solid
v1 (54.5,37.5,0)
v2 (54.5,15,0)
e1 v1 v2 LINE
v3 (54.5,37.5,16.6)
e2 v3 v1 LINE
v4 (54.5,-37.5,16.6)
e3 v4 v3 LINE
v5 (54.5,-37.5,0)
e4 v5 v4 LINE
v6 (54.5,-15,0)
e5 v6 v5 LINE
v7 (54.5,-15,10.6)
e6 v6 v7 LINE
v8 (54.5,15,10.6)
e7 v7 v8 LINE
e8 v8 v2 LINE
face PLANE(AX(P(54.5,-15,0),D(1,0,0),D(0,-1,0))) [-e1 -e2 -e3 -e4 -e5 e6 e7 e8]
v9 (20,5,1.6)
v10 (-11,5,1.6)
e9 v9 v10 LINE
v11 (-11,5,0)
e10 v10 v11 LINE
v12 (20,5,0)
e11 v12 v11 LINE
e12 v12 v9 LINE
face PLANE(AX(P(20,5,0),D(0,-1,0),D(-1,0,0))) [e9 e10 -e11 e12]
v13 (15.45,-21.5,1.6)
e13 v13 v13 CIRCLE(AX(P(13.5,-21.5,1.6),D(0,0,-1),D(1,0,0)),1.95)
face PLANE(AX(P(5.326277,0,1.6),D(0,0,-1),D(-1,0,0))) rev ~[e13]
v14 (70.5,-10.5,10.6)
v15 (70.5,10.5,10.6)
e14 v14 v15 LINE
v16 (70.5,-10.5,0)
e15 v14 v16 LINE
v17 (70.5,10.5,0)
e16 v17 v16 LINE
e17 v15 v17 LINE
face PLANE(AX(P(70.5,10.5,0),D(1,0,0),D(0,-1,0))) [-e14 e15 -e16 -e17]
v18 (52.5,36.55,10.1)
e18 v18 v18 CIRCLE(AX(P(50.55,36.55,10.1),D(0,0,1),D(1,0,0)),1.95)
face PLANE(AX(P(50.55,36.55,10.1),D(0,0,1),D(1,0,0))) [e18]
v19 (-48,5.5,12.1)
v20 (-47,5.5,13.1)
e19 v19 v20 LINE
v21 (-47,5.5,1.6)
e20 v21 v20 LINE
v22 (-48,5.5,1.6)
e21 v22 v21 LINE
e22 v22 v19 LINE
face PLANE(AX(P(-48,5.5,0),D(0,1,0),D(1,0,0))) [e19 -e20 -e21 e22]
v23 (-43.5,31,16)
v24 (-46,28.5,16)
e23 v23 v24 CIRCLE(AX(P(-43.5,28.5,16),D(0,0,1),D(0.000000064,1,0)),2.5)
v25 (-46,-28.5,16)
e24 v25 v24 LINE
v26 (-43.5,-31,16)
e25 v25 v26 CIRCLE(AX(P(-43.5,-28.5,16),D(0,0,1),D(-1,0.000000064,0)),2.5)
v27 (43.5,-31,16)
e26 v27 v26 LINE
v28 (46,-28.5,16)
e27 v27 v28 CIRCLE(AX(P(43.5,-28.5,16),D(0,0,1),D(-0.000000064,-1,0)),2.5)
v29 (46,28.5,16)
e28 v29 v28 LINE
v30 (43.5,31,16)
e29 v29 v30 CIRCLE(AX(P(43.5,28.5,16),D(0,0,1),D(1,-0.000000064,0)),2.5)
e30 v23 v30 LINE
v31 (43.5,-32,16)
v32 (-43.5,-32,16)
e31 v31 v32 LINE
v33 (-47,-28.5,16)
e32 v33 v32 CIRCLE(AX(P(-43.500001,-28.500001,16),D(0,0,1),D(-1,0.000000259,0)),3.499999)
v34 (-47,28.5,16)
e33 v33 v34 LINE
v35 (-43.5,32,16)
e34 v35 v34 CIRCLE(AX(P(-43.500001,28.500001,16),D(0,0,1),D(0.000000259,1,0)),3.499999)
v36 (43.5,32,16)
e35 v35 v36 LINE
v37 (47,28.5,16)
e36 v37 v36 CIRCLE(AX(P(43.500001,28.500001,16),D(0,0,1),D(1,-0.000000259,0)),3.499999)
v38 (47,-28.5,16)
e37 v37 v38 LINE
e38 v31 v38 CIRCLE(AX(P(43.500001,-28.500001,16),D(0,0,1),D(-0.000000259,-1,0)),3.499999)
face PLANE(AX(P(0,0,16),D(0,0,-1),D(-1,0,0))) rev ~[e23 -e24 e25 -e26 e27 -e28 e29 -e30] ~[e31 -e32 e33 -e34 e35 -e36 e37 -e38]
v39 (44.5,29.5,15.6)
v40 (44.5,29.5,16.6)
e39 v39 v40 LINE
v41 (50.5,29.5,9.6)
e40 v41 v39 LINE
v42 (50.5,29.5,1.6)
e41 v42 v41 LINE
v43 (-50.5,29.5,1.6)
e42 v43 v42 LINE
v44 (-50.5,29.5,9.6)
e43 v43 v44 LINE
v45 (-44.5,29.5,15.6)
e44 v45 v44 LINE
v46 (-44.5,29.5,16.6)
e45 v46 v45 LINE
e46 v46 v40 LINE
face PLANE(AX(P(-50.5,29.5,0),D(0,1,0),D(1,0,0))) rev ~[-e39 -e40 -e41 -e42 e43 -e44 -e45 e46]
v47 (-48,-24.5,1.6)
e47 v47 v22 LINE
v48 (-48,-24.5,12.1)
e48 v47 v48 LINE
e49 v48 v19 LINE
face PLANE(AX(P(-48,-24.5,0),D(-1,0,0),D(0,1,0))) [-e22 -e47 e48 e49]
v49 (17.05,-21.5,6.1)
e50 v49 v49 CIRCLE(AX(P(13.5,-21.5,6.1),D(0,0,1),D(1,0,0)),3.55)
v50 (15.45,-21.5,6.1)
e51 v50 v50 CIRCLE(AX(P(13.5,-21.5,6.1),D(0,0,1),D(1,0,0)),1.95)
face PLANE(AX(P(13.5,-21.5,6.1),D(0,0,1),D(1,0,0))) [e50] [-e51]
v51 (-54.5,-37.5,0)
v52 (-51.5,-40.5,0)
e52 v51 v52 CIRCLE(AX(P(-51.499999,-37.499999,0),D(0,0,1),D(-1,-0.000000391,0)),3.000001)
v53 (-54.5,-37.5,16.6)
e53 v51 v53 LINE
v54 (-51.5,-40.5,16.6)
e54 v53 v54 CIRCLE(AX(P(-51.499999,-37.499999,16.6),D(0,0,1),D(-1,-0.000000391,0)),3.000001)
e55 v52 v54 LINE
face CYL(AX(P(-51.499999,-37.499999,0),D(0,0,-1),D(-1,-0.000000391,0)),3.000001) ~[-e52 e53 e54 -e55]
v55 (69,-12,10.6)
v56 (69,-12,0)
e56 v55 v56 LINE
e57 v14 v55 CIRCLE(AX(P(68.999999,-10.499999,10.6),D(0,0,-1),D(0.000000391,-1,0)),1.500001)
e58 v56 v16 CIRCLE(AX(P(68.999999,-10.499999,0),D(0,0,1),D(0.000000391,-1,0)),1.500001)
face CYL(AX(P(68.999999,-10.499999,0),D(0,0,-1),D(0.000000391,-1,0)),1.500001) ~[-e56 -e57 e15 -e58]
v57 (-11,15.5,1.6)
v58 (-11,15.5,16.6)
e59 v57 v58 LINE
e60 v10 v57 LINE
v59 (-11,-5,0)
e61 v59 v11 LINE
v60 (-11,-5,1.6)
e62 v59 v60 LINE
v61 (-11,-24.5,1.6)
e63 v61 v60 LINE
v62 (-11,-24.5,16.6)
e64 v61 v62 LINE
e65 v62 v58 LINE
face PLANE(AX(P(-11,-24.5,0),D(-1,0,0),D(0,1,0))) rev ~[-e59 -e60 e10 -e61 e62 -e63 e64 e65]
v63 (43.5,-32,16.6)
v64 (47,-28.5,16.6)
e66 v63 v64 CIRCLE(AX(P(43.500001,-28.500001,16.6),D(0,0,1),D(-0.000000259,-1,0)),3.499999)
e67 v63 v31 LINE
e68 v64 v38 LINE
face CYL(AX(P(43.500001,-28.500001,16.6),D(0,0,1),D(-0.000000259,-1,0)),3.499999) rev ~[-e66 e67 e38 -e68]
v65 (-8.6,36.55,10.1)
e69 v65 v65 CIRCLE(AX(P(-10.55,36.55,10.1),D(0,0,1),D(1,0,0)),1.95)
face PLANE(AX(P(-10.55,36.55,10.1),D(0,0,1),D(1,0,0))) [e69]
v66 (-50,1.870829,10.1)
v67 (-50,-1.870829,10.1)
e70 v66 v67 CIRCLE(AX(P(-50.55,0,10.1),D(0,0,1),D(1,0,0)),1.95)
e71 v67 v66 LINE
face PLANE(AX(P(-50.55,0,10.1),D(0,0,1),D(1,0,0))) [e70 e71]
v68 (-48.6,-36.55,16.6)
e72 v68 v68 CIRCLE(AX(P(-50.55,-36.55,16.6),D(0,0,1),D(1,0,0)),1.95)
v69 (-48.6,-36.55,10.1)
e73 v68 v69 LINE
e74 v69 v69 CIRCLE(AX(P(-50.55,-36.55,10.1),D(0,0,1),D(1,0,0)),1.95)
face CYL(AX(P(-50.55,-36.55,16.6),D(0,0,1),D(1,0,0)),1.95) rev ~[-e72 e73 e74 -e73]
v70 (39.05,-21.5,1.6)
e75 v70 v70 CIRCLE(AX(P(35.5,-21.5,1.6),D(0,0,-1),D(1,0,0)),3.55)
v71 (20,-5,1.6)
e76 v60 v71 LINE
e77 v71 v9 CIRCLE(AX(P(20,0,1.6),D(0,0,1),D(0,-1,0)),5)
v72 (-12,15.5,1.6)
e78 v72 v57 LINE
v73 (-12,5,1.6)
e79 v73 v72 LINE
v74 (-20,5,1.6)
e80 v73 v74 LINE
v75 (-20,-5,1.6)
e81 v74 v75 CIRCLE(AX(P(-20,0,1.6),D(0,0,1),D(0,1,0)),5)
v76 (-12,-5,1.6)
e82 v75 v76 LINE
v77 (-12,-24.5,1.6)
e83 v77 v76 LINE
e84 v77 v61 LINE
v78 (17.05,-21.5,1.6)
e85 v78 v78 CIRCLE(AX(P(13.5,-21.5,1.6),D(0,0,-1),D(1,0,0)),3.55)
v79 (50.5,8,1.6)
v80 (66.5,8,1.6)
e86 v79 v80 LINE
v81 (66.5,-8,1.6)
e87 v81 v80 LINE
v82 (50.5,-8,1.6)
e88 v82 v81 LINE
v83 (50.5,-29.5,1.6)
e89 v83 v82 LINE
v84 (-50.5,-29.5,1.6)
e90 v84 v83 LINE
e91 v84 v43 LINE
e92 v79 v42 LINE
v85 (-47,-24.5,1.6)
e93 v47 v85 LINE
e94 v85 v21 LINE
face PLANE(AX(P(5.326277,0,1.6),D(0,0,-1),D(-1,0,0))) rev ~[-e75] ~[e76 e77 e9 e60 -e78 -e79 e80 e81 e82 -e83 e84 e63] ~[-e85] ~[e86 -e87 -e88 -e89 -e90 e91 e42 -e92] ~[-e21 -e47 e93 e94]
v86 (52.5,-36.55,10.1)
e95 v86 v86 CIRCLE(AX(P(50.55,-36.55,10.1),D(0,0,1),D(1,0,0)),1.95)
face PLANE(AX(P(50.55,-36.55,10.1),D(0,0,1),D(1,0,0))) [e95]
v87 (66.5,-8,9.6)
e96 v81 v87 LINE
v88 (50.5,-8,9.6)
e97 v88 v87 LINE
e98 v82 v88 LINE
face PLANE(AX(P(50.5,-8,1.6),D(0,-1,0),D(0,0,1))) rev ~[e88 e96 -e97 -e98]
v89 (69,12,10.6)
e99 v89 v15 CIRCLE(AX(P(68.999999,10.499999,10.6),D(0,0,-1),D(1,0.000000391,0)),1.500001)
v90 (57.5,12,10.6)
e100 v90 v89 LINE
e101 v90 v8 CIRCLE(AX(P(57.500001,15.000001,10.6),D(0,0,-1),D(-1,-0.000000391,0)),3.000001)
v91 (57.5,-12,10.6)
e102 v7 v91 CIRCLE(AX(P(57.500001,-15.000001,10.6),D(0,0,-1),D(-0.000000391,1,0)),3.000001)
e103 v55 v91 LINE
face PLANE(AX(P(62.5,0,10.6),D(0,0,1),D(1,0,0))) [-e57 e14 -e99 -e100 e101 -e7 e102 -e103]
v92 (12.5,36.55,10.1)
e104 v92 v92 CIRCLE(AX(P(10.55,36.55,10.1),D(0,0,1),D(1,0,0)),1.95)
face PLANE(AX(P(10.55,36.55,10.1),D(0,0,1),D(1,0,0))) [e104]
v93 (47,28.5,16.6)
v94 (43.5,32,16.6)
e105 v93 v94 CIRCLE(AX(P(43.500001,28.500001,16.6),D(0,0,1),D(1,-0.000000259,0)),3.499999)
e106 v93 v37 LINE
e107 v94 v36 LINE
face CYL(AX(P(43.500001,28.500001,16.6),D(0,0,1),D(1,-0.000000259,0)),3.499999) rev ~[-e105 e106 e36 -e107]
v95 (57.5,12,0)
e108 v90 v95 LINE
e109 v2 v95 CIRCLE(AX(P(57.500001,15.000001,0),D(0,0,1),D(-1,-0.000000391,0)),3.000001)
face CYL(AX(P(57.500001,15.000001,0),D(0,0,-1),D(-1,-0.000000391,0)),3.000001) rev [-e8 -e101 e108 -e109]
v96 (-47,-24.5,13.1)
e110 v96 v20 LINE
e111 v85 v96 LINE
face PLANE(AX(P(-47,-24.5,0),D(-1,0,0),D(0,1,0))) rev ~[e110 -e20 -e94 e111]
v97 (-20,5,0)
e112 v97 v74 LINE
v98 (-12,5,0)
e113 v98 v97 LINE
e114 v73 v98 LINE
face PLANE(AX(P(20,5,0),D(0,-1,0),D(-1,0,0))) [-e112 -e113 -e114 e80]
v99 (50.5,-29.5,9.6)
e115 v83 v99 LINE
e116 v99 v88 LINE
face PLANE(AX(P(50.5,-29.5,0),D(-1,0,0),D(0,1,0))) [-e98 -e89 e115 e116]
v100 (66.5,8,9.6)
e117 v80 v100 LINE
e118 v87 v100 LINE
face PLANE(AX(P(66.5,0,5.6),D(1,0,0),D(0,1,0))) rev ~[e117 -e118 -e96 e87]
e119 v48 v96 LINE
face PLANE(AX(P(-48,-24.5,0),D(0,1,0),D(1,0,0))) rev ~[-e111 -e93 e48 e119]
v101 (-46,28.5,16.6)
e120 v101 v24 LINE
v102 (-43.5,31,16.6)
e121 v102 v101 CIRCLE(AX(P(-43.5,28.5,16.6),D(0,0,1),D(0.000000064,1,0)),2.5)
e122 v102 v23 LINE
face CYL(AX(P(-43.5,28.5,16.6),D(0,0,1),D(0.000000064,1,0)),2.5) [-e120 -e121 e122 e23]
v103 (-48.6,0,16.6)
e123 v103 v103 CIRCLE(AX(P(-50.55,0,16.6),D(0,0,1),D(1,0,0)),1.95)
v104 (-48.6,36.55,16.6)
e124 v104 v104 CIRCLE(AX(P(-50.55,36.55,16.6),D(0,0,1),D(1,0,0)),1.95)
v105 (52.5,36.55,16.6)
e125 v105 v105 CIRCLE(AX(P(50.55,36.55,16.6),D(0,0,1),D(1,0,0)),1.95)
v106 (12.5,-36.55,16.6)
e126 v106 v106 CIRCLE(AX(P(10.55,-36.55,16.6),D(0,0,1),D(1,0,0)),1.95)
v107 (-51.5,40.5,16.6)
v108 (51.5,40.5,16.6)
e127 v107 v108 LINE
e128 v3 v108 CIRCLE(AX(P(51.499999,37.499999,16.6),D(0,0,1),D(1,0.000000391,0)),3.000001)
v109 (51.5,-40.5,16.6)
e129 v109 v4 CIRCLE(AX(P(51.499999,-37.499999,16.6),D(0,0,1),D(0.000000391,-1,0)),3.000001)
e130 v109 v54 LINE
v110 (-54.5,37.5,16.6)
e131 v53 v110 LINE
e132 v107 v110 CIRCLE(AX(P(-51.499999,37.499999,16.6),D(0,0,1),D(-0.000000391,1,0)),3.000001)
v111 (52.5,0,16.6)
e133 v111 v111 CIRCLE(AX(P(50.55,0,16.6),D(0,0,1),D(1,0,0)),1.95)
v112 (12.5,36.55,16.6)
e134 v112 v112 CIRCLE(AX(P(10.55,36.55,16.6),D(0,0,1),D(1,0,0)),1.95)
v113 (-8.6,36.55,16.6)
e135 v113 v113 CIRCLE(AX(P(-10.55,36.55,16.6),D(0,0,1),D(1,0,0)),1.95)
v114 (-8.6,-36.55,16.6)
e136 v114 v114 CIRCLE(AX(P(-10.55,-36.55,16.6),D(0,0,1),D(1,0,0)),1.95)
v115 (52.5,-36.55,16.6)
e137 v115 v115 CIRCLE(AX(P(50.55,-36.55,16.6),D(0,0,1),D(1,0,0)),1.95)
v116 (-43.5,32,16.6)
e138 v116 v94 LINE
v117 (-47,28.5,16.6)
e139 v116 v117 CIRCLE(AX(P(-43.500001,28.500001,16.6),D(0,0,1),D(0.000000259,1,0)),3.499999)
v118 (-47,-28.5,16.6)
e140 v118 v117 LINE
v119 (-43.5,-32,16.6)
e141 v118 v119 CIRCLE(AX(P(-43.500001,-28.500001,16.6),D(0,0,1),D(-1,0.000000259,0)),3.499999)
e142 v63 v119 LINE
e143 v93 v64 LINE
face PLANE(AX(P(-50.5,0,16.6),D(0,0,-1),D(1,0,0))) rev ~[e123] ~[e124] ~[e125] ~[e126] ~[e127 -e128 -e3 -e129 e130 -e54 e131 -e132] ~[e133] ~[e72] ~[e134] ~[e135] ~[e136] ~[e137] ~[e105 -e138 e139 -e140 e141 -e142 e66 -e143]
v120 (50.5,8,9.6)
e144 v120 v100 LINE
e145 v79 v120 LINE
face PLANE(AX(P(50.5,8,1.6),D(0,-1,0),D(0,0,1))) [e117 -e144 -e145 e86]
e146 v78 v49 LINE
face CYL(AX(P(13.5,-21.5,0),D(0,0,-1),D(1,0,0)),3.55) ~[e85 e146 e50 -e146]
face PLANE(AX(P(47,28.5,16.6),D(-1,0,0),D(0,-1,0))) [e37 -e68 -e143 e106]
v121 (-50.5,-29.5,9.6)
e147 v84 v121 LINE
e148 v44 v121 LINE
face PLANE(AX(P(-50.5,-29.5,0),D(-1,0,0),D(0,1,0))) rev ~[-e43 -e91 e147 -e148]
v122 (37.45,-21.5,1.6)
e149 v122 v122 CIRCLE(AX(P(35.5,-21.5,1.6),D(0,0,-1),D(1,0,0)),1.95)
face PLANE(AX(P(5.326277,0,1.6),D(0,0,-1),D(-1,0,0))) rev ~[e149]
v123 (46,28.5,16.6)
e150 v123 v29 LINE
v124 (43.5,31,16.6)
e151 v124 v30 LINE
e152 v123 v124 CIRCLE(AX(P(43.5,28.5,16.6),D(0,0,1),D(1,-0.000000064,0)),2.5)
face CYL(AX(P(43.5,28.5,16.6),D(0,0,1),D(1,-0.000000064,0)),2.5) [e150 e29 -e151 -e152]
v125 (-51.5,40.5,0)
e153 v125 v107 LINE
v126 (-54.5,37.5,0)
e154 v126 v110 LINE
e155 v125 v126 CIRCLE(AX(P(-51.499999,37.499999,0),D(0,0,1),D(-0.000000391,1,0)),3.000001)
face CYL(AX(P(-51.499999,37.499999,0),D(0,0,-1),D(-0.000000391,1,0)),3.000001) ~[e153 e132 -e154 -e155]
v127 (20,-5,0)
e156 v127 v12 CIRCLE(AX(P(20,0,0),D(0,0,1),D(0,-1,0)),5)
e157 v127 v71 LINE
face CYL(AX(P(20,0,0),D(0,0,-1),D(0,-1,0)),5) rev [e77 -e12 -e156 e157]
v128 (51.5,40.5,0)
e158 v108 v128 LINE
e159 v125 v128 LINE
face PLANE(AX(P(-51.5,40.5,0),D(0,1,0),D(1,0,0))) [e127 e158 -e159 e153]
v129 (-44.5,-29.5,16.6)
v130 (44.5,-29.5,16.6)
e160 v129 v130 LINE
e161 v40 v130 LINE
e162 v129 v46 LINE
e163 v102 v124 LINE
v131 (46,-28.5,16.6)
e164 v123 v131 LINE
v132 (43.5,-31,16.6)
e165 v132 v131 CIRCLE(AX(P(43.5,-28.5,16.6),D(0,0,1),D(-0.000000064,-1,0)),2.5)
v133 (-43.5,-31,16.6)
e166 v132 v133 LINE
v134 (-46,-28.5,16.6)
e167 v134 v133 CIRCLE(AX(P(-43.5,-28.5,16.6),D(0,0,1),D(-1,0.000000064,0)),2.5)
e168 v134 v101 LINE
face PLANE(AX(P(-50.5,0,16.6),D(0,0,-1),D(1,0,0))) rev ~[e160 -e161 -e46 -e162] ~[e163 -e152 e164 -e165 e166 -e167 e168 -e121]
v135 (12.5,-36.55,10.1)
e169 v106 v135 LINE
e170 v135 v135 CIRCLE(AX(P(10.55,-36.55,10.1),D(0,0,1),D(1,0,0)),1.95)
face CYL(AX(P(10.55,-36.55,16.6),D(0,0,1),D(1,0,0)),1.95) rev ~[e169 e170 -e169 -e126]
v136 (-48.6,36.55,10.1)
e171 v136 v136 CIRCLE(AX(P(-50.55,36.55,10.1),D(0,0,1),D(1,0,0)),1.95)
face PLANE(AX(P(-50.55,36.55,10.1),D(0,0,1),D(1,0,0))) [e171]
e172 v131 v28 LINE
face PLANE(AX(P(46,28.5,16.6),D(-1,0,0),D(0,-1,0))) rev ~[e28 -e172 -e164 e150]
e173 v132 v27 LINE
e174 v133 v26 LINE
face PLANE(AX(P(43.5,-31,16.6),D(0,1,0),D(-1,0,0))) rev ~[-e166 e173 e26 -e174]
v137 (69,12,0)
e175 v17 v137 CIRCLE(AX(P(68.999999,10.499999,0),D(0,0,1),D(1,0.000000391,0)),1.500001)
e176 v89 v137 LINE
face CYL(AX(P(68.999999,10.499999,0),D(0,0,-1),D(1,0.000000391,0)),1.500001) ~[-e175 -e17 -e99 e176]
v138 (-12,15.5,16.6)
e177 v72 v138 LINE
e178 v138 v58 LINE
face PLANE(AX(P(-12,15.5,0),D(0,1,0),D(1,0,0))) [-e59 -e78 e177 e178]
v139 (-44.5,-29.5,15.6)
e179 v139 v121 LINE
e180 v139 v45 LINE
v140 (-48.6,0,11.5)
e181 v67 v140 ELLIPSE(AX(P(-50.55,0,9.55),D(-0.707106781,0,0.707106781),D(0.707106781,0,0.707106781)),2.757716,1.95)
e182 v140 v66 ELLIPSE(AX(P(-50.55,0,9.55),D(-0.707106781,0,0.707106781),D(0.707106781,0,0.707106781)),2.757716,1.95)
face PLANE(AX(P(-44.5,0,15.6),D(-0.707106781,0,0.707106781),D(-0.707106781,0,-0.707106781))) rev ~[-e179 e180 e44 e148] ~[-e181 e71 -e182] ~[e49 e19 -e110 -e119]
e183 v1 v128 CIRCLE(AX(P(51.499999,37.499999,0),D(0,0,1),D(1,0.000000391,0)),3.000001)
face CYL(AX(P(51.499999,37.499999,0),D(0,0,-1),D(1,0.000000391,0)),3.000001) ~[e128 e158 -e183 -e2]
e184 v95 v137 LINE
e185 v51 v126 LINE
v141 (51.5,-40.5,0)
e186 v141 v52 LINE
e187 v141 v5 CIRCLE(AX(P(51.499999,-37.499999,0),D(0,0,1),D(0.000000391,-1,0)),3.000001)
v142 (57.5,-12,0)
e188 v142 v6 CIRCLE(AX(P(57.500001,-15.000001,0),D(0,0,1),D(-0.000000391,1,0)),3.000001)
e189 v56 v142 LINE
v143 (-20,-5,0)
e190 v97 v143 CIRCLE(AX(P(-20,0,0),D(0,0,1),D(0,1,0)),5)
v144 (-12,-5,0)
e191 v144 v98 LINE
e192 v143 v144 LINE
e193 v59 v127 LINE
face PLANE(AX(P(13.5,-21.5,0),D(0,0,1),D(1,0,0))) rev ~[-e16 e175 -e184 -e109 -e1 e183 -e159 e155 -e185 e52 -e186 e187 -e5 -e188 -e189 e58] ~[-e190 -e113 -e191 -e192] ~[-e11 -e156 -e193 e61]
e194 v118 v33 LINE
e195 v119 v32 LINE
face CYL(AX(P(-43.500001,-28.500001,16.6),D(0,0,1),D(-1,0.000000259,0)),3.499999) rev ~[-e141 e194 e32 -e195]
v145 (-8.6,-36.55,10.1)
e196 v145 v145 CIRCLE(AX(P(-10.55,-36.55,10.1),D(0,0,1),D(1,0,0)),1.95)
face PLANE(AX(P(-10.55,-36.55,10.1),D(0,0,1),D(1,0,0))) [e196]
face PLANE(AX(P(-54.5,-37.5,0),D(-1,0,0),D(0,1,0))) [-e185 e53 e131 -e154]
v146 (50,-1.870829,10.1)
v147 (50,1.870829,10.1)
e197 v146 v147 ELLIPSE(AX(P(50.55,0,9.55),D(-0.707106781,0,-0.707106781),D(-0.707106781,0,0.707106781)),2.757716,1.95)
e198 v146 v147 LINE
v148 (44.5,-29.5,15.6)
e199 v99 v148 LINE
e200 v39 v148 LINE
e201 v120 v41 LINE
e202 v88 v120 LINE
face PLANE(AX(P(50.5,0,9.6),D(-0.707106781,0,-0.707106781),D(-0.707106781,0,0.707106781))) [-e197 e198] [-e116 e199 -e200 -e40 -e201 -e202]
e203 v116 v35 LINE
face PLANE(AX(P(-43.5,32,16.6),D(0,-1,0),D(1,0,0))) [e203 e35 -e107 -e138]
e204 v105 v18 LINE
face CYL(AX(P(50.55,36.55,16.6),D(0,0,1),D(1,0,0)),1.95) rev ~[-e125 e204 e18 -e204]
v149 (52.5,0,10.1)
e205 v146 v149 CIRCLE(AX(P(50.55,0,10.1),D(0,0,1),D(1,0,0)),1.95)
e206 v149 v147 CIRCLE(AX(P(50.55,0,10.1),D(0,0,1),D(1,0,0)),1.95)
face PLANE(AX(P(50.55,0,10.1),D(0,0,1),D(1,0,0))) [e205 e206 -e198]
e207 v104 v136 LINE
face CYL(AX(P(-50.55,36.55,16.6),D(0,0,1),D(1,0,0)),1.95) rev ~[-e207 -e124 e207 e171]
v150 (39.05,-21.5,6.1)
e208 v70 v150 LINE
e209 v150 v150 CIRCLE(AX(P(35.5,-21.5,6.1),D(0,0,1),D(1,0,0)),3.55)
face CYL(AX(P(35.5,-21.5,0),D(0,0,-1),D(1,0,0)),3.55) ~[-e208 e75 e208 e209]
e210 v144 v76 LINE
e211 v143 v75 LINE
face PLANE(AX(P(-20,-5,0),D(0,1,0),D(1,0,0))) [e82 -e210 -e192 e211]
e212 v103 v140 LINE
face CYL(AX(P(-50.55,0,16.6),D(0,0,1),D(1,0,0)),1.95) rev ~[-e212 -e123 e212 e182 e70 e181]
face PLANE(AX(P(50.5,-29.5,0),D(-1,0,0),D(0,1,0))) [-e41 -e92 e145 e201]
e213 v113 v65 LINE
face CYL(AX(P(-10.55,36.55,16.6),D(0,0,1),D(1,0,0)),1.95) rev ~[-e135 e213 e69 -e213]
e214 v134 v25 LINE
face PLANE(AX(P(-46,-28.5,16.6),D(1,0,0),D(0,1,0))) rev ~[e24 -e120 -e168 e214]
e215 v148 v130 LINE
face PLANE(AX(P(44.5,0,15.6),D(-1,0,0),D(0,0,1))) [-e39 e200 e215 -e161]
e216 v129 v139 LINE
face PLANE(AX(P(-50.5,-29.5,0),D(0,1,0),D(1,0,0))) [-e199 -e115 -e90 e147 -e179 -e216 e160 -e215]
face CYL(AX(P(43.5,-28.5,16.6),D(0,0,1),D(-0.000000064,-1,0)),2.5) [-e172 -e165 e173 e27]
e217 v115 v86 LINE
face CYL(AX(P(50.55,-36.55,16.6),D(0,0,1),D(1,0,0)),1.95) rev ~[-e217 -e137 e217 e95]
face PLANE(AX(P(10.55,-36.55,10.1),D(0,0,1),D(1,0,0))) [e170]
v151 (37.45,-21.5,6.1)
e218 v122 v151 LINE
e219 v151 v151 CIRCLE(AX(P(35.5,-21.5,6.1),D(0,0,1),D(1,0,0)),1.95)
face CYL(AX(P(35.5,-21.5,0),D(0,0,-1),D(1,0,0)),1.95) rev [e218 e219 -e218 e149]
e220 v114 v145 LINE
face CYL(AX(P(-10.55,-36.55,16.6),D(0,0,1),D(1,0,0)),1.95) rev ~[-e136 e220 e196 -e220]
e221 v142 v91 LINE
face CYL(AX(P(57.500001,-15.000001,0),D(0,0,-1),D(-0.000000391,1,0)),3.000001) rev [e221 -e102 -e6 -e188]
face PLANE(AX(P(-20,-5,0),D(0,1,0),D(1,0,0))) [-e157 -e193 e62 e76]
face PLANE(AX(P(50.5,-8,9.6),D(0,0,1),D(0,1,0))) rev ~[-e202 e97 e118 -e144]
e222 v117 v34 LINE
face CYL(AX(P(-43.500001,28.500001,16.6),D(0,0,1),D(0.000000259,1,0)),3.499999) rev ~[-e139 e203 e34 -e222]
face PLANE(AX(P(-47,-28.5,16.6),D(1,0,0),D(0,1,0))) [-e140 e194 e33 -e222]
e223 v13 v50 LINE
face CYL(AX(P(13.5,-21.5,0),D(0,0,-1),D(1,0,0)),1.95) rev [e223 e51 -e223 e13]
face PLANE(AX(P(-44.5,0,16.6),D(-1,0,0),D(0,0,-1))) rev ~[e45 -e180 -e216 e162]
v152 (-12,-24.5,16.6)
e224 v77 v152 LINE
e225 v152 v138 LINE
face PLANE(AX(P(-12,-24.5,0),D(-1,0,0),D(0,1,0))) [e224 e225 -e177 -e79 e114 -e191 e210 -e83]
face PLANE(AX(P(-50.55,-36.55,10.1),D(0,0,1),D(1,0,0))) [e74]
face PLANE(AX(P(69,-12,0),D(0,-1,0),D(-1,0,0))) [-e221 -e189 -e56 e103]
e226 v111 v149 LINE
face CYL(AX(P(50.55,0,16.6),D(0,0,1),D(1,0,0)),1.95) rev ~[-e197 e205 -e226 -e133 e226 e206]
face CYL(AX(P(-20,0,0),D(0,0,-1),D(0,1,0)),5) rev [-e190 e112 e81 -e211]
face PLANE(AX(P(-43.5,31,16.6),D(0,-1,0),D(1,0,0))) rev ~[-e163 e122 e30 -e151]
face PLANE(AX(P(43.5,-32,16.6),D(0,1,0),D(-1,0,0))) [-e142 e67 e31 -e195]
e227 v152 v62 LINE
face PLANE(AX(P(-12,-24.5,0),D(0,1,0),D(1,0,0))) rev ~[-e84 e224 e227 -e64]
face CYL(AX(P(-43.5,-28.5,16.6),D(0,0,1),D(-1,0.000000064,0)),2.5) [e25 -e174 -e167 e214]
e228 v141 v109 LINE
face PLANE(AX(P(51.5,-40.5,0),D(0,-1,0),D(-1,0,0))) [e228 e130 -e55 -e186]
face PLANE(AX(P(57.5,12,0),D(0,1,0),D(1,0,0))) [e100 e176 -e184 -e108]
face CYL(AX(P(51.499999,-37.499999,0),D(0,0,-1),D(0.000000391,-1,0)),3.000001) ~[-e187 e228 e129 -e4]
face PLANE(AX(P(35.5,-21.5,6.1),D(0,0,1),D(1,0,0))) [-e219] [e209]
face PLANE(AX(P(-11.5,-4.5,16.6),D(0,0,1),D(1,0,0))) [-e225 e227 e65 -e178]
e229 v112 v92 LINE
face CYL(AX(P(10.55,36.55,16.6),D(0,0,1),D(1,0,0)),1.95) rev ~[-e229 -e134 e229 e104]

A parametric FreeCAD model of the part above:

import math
import FreeCAD as App
import Part
import Sketcher

doc = App.newDocument("Part")
body = doc.addObject("PartDesign::Body", "Body")

sketch1 = body.newObject("Sketcher::SketchObject", "Sketch")
sketch1.AttachmentSupport = (doc.getObject("XY_Plane"), [""])
sketch1.MapMode = "FlatFace"
sketch1.addGeometry([
    Part.LineSegment(App.Vector(51.5, 40.5, 0), App.Vector(-51.5, 40.5, 0)),
    Part.ArcOfCircle(Part.Circle(App.Vector(-51.499999, 37.499999, 0), App.Vector(0, 0, 1), 3.000001), math.radians(90.000022), math.radians(179.999978)),
    Part.LineSegment(App.Vector(-54.5, 37.5, 0), App.Vector(-54.5, -37.5, 0)),
    Part.ArcOfCircle(Part.Circle(App.Vector(-51.499999, -37.499999, 0), App.Vector(0, 0, 1), 3.000001), math.radians(-179.999978), math.radians(-90.000022)),
    Part.LineSegment(App.Vector(-51.5, -40.5, 0), App.Vector(51.5, -40.5, 0)),
    Part.ArcOfCircle(Part.Circle(App.Vector(51.499999, -37.499999, 0), App.Vector(0, 0, 1), 3.000001), math.radians(-89.999978), math.radians(-0.000022)),
    Part.LineSegment(App.Vector(54.5, -37.5, 0), App.Vector(54.5, -15, 0)),
    Part.ArcOfCircle(Part.Circle(App.Vector(57.500001, -15.000001, 0), App.Vector(0, 0, 1), 3.000001), math.radians(90.000022), math.radians(179.999978)),
    Part.LineSegment(App.Vector(57.5, -12, 0), App.Vector(69, -12, 0)),
    Part.ArcOfCircle(Part.Circle(App.Vector(68.999999, -10.499999, 0), App.Vector(0, 0, 1), 1.500001), math.radians(-89.999978), math.radians(-0.000022)),
    Part.LineSegment(App.Vector(70.5, -10.5, 0), App.Vector(70.5, 10.5, 0)),
    Part.ArcOfCircle(Part.Circle(App.Vector(68.999999, 10.499999, 0), App.Vector(0, 0, 1), 1.500001), math.radians(0.000022), math.radians(89.999978)),
    Part.LineSegment(App.Vector(69, 12, 0), App.Vector(57.5, 12, 0)),
    Part.ArcOfCircle(Part.Circle(App.Vector(57.500001, 15.000001, 0), App.Vector(0, 0, 1), 3.000001), math.radians(-179.999978), math.radians(-90.000022)),
    Part.LineSegment(App.Vector(54.5, 15, 0), App.Vector(54.5, 37.5, 0)),
    Part.ArcOfCircle(Part.Circle(App.Vector(51.499999, 37.499999, 0), App.Vector(0, 0, 1), 3.000001), math.radians(0.000022), math.radians(89.999978)),
    Part.LineSegment(App.Vector(-20, 5, 0), App.Vector(20, 5, 0)),
    Part.ArcOfCircle(Part.Circle(App.Vector(20, 0, 0), App.Vector(0, 0, 1), 5), math.radians(-90), math.radians(90)),
    Part.LineSegment(App.Vector(20, -5, 0), App.Vector(-20, -5, 0)),
    Part.ArcOfCircle(Part.Circle(App.Vector(-20, 0, 0), App.Vector(0, 0, 1), 5), math.radians(90), math.radians(270)),
], False)
sketch1.addConstraint([
    Sketcher.Constraint("Tangent", 0, 2, 1, 1),
    Sketcher.Constraint("Tangent", 1, 2, 2, 1),
    Sketcher.Constraint("Tangent", 2, 2, 3, 1),
    Sketcher.Constraint("Tangent", 3, 2, 4, 1),
    Sketcher.Constraint("Tangent", 4, 2, 5, 1),
    Sketcher.Constraint("Tangent", 5, 2, 6, 1),
    Sketcher.Constraint("Tangent", 6, 2, 7, 2),
    Sketcher.Constraint("Tangent", 7, 1, 8, 1),
    Sketcher.Constraint("Tangent", 8, 2, 9, 1),
    Sketcher.Constraint("Tangent", 9, 2, 10, 1),
    Sketcher.Constraint("Tangent", 10, 2, 11, 1),
    Sketcher.Constraint("Tangent", 11, 2, 12, 1),
    Sketcher.Constraint("Tangent", 12, 2, 13, 2),
    Sketcher.Constraint("Tangent", 13, 1, 14, 1),
    Sketcher.Constraint("Tangent", 14, 2, 15, 1),
    Sketcher.Constraint("Tangent", 15, 2, 0, 1),
    Sketcher.Constraint("Tangent", 16, 2, 17, 2),
    Sketcher.Constraint("Tangent", 17, 1, 18, 1),
    Sketcher.Constraint("Tangent", 18, 2, 19, 2),
    Sketcher.Constraint("Tangent", 19, 1, 16, 1),
    Sketcher.Constraint("Horizontal", 0),
    Sketcher.Constraint("Vertical", 2),
    Sketcher.Constraint("Horizontal", 4),
    Sketcher.Constraint("Vertical", 6),
    Sketcher.Constraint("Horizontal", 8),
    Sketcher.Constraint("Vertical", 10),
    Sketcher.Constraint("Horizontal", 12),
    Sketcher.Constraint("Vertical", 14),
    Sketcher.Constraint("Horizontal", 16),
    Sketcher.Constraint("Horizontal", 18),
    Sketcher.Constraint("Equal", 1, 3),
    Sketcher.Constraint("Equal", 3, 5),
    Sketcher.Constraint("Equal", 5, 7),
    Sketcher.Constraint("Equal", 9, 11),
    Sketcher.Constraint("Equal", 7, 13),
    Sketcher.Constraint("Equal", 13, 15),
    Sketcher.Constraint("Symmetric", 1, 3, 5, 3, -1, 1),
    Sketcher.Constraint("Symmetric", 17, 3, 19, 3, -1, 1),
    Sketcher.Constraint("Symmetric", 7, 3, 13, 3, -1),
    Sketcher.Constraint("Radius", 1, 3.000001),
    Sketcher.Constraint("Radius", 17, 5.0),
    Sketcher.Constraint("Radius", 9, 1.500001),
    Sketcher.Constraint("DistanceX", 0, 2, 0, 1, 103.0),
    Sketcher.Constraint("DistanceX", 16, 1, 16, 2, 40.0),
    Sketcher.Constraint("DistanceY", 2, 2, 2, 1, 75.0),
    Sketcher.Constraint("DistanceY", 10, 1, 10, 2, 21.0),
    Sketcher.Constraint("DistanceX", 8, 1, 8, 2, 11.5),
])
pad1 = body.newObject("PartDesign::Pad", "Pad")
pad1.Profile = sketch1
pad1.Length = 1.6

sketch2 = body.newObject("Sketcher::SketchObject", "Sketch001")
sketch2.AttachmentSupport = (doc.getObject("XY_Plane"), [""])
sketch2.MapMode = "FlatFace"
sketch2.addGeometry([
    Part.LineSegment(App.Vector(51.5, 40.5, 0), App.Vector(-51.5, 40.5, 0)),
    Part.ArcOfCircle(Part.Circle(App.Vector(-51.499999, 37.499999, 0), App.Vector(0, 0, 1), 3.000001), math.radians(90.000022), math.radians(179.999978)),
    Part.LineSegment(App.Vector(-54.5, 37.5, 0), App.Vector(-54.5, -37.5, 0)),
    Part.ArcOfCircle(Part.Circle(App.Vector(-51.499999, -37.499999, 0), App.Vector(0, 0, 1), 3.000001), math.radians(-179.999978), math.radians(-90.000022)),
    Part.LineSegment(App.Vector(-51.5, -40.5, 0), App.Vector(51.5, -40.5, 0)),
    Part.ArcOfCircle(Part.Circle(App.Vector(51.499999, -37.499999, 0), App.Vector(0, 0, 1), 3.000001), math.radians(-89.999978), math.radians(-0.000022)),
    Part.LineSegment(App.Vector(54.5, -37.5, 0), App.Vector(54.5, -15, 0)),
    Part.ArcOfCircle(Part.Circle(App.Vector(57.500001, -15.000001, 0), App.Vector(0, 0, 1), 3.000001), math.radians(90.000022), math.radians(179.999978)),
    Part.LineSegment(App.Vector(57.5, -12, 0), App.Vector(69, -12, 0)),
    Part.ArcOfCircle(Part.Circle(App.Vector(68.999999, -10.499999, 0), App.Vector(0, 0, 1), 1.500001), math.radians(-89.999978), math.radians(-0.000022)),
    Part.LineSegment(App.Vector(70.5, -10.5, 0), App.Vector(70.5, 10.5, 0)),
    Part.ArcOfCircle(Part.Circle(App.Vector(68.999999, 10.499999, 0), App.Vector(0, 0, 1), 1.500001), math.radians(0.000022), math.radians(89.999978)),
    Part.LineSegment(App.Vector(69, 12, 0), App.Vector(57.5, 12, 0)),
    Part.ArcOfCircle(Part.Circle(App.Vector(57.500001, 15.000001, 0), App.Vector(0, 0, 1), 3.000001), math.radians(-179.999978), math.radians(-90.000022)),
    Part.LineSegment(App.Vector(54.5, 15, 0), App.Vector(54.5, 37.5, 0)),
    Part.ArcOfCircle(Part.Circle(App.Vector(51.499999, 37.499999, 0), App.Vector(0, 0, 1), 3.000001), math.radians(0.000022), math.radians(89.999978)),
    Part.LineSegment(App.Vector(-50.5, -29.5, 0), App.Vector(-50.5, 29.5, 0)),
    Part.LineSegment(App.Vector(-50.5, 29.5, 0), App.Vector(50.5, 29.5, 0)),
    Part.LineSegment(App.Vector(50.5, 29.5, 0), App.Vector(50.5, -29.5, 0)),
    Part.LineSegment(App.Vector(50.5, -29.5, 0), App.Vector(-50.5, -29.5, 0)),
    Part.LineSegment(App.Vector(-48, 5.5, 0), App.Vector(-48, -24.5, 0)),
    Part.LineSegment(App.Vector(-48, -24.5, 0), App.Vector(-47, -24.5, 0)),
    Part.LineSegment(App.Vector(-47, -24.5, 0), App.Vector(-47, 5.5, 0)),
    Part.LineSegment(App.Vector(-47, 5.5, 0), App.Vector(-48, 5.5, 0)),
    Part.LineSegment(App.Vector(-12, 15.5, 0), App.Vector(-12, -24.5, 0)),
    Part.LineSegment(App.Vector(-12, -24.5, 0), App.Vector(-11, -24.5, 0)),
    Part.LineSegment(App.Vector(-11, -24.5, 0), App.Vector(-11, 15.5, 0)),
    Part.LineSegment(App.Vector(-11, 15.5, 0), App.Vector(-12, 15.5, 0)),
], False)
sketch2.addConstraint([
    Sketcher.Constraint("Tangent", 0, 2, 1, 1),
    Sketcher.Constraint("Tangent", 1, 2, 2, 1),
    Sketcher.Constraint("Tangent", 2, 2, 3, 1),
    Sketcher.Constraint("Tangent", 3, 2, 4, 1),
    Sketcher.Constraint("Tangent", 4, 2, 5, 1),
    Sketcher.Constraint("Tangent", 5, 2, 6, 1),
    Sketcher.Constraint("Tangent", 6, 2, 7, 2),
    Sketcher.Constraint("Tangent", 7, 1, 8, 1),
    Sketcher.Constraint("Tangent", 8, 2, 9, 1),
    Sketcher.Constraint("Tangent", 9, 2, 10, 1),
    Sketcher.Constraint("Tangent", 10, 2, 11, 1),
    Sketcher.Constraint("Tangent", 11, 2, 12, 1),
    Sketcher.Constraint("Tangent", 12, 2, 13, 2),
    Sketcher.Constraint("Tangent", 13, 1, 14, 1),
    Sketcher.Constraint("Tangent", 14, 2, 15, 1),
    Sketcher.Constraint("Tangent", 15, 2, 0, 1),
    Sketcher.Constraint("Coincident", 16, 2, 17, 1),
    Sketcher.Constraint("Coincident", 17, 2, 18, 1),
    Sketcher.Constraint("Coincident", 18, 2, 19, 1),
    Sketcher.Constraint("Coincident", 19, 2, 16, 1),
    Sketcher.Constraint("Coincident", 20, 2, 21, 1),
    Sketcher.Constraint("Coincident", 21, 2, 22, 1),
    Sketcher.Constraint("Coincident", 22, 2, 23, 1),
    Sketcher.Constraint("Coincident", 23, 2, 20, 1),
    Sketcher.Constraint("Coincident", 24, 2, 25, 1),
    Sketcher.Constraint("Coincident", 25, 2, 26, 1),
    Sketcher.Constraint("Coincident", 26, 2, 27, 1),
    Sketcher.Constraint("Coincident", 27, 2, 24, 1),
    Sketcher.Constraint("Horizontal", 0),
    Sketcher.Constraint("Vertical", 2),
    Sketcher.Constraint("Horizontal", 4),
    Sketcher.Constraint("Vertical", 6),
    Sketcher.Constraint("Horizontal", 8),
    Sketcher.Constraint("Vertical", 10),
    Sketcher.Constraint("Horizontal", 12),
    Sketcher.Constraint("Vertical", 14),
    Sketcher.Constraint("Vertical", 16),
    Sketcher.Constraint("Horizontal", 17),
    Sketcher.Constraint("Vertical", 18),
    Sketcher.Constraint("Horizontal", 19),
    Sketcher.Constraint("Vertical", 20),
    Sketcher.Constraint("Horizontal", 21),
    Sketcher.Constraint("Vertical", 22),
    Sketcher.Constraint("Horizontal", 23),
    Sketcher.Constraint("Vertical", 24),
    Sketcher.Constraint("Horizontal", 25),
    Sketcher.Constraint("Vertical", 26),
    Sketcher.Constraint("Horizontal", 27),
    Sketcher.Constraint("Equal", 1, 3),
    Sketcher.Constraint("Equal", 3, 5),
    Sketcher.Constraint("Equal", 5, 7),
    Sketcher.Constraint("Equal", 9, 11),
    Sketcher.Constraint("Equal", 7, 13),
    Sketcher.Constraint("Equal", 13, 15),
    Sketcher.Constraint("Symmetric", 1, 3, 5, 3, -1, 1),
    Sketcher.Constraint("Symmetric", 16, 2, 18, 2, -1, 1),
    Sketcher.Constraint("Symmetric", 7, 3, 13, 3, -1),
    Sketcher.Constraint("Horizontal", 21, 2, 24, 2),
    Sketcher.Constraint("Equal", 23, 25),
    Sketcher.Constraint("Radius", 1, 3.000001),
    Sketcher.Constraint("Radius", 9, 1.500001),
    Sketcher.Constraint("DistanceX", 0, 2, 0, 1, 103.0),
    Sketcher.Constraint("DistanceX", 17, 1, 17, 2, 101.0),
    Sketcher.Constraint("DistanceX", 21, 1, 21, 2, 1.0),
    Sketcher.Constraint("DistanceY", 2, 2, 2, 1, 75.0),
    Sketcher.Constraint("DistanceY", 10, 1, 10, 2, 21.0),
    Sketcher.Constraint("DistanceY", 16, 1, 16, 2, 59.0),
    Sketcher.Constraint("DistanceY", 20, 2, 20, 1, 30.0),
    Sketcher.Constraint("DistanceY", 24, 2, 24, 1, 40.0),
    Sketcher.Constraint("DistanceX", 8, 1, 8, 2, 11.5),
    Sketcher.Constraint("DistanceX", 20, 2, -1, 1, 48.0),
    Sketcher.Constraint("DistanceX", 24, 2, -1, 1, 12.0),
    Sketcher.Constraint("DistanceY", 19, 2, 20, 2, 5.0),
])
pad2 = body.newObject("PartDesign::Pad", "Pad001")
pad2.Profile = sketch2
pad2.Length = 16.6

sketch3 = body.newObject("Sketcher::SketchObject", "Sketch002")
sketch3.AttachmentSupport = (doc.getObject("XY_Plane"), [""])
sketch3.MapMode = "FlatFace"
sketch3.AttachmentOffset = App.Placement(App.Vector(0, 0, 16.6), App.Rotation())
sketch3.addGeometry([
    Part.LineSegment(App.Vector(54.5, 15, 0), App.Vector(54.5, -15, 0)),
    Part.LineSegment(App.Vector(54.5, -15, 0), App.Vector(70.5, -15, 0)),
    Part.LineSegment(App.Vector(70.5, -15, 0), App.Vector(70.5, 15, 0)),
    Part.LineSegment(App.Vector(70.5, 15, 0), App.Vector(54.5, 15, 0)),
], False)
sketch3.addConstraint([
    Sketcher.Constraint("Coincident", 0, 2, 1, 1),
    Sketcher.Constraint("Coincident", 1, 2, 2, 1),
    Sketcher.Constraint("Coincident", 2, 2, 3, 1),
    Sketcher.Constraint("Coincident", 3, 2, 0, 1),
    Sketcher.Constraint("Vertical", 0),
    Sketcher.Constraint("Horizontal", 1),
    Sketcher.Constraint("Vertical", 2),
    Sketcher.Constraint("Horizontal", 3),
    Sketcher.Constraint("DistanceX", 1, 1, 1, 2, 16.0),
    Sketcher.Constraint("DistanceY", 0, 2, 0, 1, 30.0),
    Sketcher.Constraint("DistanceY", 0, 2, -1, 1, 15.0),
    Sketcher.Constraint("DistanceX", -1, 1, 0, 2, 54.5),
])
pocket1 = body.newObject("PartDesign::Pocket", "Pocket")
pocket1.Profile = sketch3
pocket1.Length = 6

sketch4 = body.newObject("Sketcher::SketchObject", "Sketch003")
sketch4.AttachmentSupport = (doc.getObject("YZ_Plane"), [""])
sketch4.MapMode = "FlatFace"
sketch4.AttachmentOffset = App.Placement(App.Vector(0, 0, 50.5), App.Rotation())
sketch4.addGeometry([
    Part.LineSegment(App.Vector(-8, 9.6, 0), App.Vector(-8, 1.6, 0)),
    Part.LineSegment(App.Vector(-8, 1.6, 0), App.Vector(8, 1.6, 0)),
    Part.LineSegment(App.Vector(8, 1.6, 0), App.Vector(8, 9.6, 0)),
    Part.LineSegment(App.Vector(8, 9.6, 0), App.Vector(-8, 9.6, 0)),
], False)
sketch4.addConstraint([
    Sketcher.Constraint("Coincident", 0, 2, 1, 1),
    Sketcher.Constraint("Coincident", 1, 2, 2, 1),
    Sketcher.Constraint("Coincident", 2, 2, 3, 1),
    Sketcher.Constraint("Coincident", 3, 2, 0, 1),
    Sketcher.Constraint("Vertical", 0),
    Sketcher.Constraint("Horizontal", 1),
    Sketcher.Constraint("Vertical", 2),
    Sketcher.Constraint("Horizontal", 3),
    Sketcher.Constraint("DistanceX", 1, 1, 1, 2, 16.0),
    Sketcher.Constraint("DistanceY", 0, 2, 0, 1, 8.0),
    Sketcher.Constraint("DistanceX", 0, 2, -1, 1, 8.0),
    Sketcher.Constraint("DistanceY", -1, 1, 0, 2, 1.6),
])
pocket2 = body.newObject("PartDesign::Pocket", "Pocket001")
pocket2.Profile = sketch4
pocket2.Length = 16
pocket2.Reversed = True

sketch5 = body.newObject("Sketcher::SketchObject", "Sketch004")
sketch5.AttachmentSupport = (doc.getObject("XY_Plane"), [""])
sketch5.MapMode = "FlatFace"
sketch5.addGeometry([
    Part.Circle(App.Vector(13.5, -21.5, 0), App.Vector(0, 0, 1), 3.55),
    Part.Circle(App.Vector(13.5, -21.5, 0), App.Vector(0, 0, 1), 1.95),
    Part.Circle(App.Vector(35.5, -21.5, 0), App.Vector(0, 0, 1), 3.55),
    Part.Circle(App.Vector(35.5, -21.5, 0), App.Vector(0, 0, 1), 1.95),
], False)
sketch5.addConstraint([
    Sketcher.Constraint("Coincident", 1, 3, 0, 3),
    Sketcher.Constraint("Coincident", 3, 3, 2, 3),
    Sketcher.Constraint("Equal", 0, 2),
    Sketcher.Constraint("Equal", 1, 3),
    Sketcher.Constraint("Horizontal", 1, 3, 2, 3),
    Sketcher.Constraint("Diameter", 0, 7.1),
    Sketcher.Constraint("Diameter", 1, 3.9),
    Sketcher.Constraint("DistanceX", 0, 3, 2, 3, 22.0),
    Sketcher.Constraint("DistanceX", -1, 1, 0, 3, 13.5),
    Sketcher.Constraint("DistanceY", 0, 3, -1, 1, 21.5),
])
pad3 = body.newObject("PartDesign::Pad", "Pad002")
pad3.Profile = sketch5
pad3.Length = 6.1

sketch6 = body.newObject("Sketcher::SketchObject", "Sketch005")
sketch6.AttachmentSupport = (doc.getObject("XZ_Plane"), [""])
sketch6.MapMode = "FlatFace"
sketch6.addGeometry([
    Part.LineSegment(App.Vector(50.5, 16.6, 0), App.Vector(44.5, 16.6, 0)),
    Part.LineSegment(App.Vector(44.5, 16.6, 0), App.Vector(44.5, 15.6, 0)),
    Part.LineSegment(App.Vector(44.5, 15.6, 0), App.Vector(50.5, 9.6, 0)),
    Part.LineSegment(App.Vector(50.5, 9.6, 0), App.Vector(50.5, 16.6, 0)),
    Part.LineSegment(App.Vector(-44.5, 16.6, 0), App.Vector(-50.5, 16.6, 0)),
    Part.LineSegment(App.Vector(-50.5, 16.6, 0), App.Vector(-50.5, 9.6, 0)),
    Part.LineSegment(App.Vector(-50.5, 9.6, 0), App.Vector(-44.5, 15.6, 0)),
    Part.LineSegment(App.Vector(-44.5, 15.6, 0), App.Vector(-44.5, 16.6, 0)),
], False)
sketch6.addConstraint([
    Sketcher.Constraint("Coincident", 0, 2, 1, 1),
    Sketcher.Constraint("Coincident", 1, 2, 2, 1),
    Sketcher.Constraint("Coincident", 2, 2, 3, 1),
    Sketcher.Constraint("Coincident", 3, 2, 0, 1),
    Sketcher.Constraint("Coincident", 4, 2, 5, 1),
    Sketcher.Constraint("Coincident", 5, 2, 6, 1),
    Sketcher.Constraint("Coincident", 6, 2, 7, 1),
    Sketcher.Constraint("Coincident", 7, 2, 4, 1),
    Sketcher.Constraint("Horizontal", 0),
    Sketcher.Constraint("Vertical", 1),
    Sketcher.Constraint("Vertical", 3),
    Sketcher.Constraint("Horizontal", 4),
    Sketcher.Constraint("Vertical", 5),
    Sketcher.Constraint("Vertical", 7),
    Sketcher.Constraint("Symmetric", 3, 2, 4, 2, -2),
    Sketcher.Constraint("Symmetric", 1, 2, 6, 2, -2),
    Sketcher.Constraint("Perpendicular", 2, 6),
    Sketcher.Constraint("Horizontal", 2, 2, 5, 2),
    Sketcher.Constraint("DistanceX", 0, 2, 0, 1, 6.0),
    Sketcher.Constraint("DistanceY", 1, 2, 1, 1, 1.0),
    Sketcher.Constraint("DistanceX", 4, 2, 0, 2, 95.0),
    Sketcher.Constraint("DistanceY", -1, 1, 0, 2, 16.6),
])
pad4 = body.newObject("PartDesign::Pad", "Pad003")
pad4.Profile = sketch6
pad4.Length = 59
pad4.Midplane = True

sketch7 = body.newObject("Sketcher::SketchObject", "Sketch006")
sketch7.AttachmentSupport = (doc.getObject("XY_Plane"), [""])
sketch7.MapMode = "FlatFace"
sketch7.AttachmentOffset = App.Placement(App.Vector(0, 0, 16.6), App.Rotation())
sketch7.addGeometry([
    Part.LineSegment(App.Vector(43.5, 32, 0), App.Vector(-43.5, 32, 0)),
    Part.ArcOfCircle(Part.Circle(App.Vector(-43.500001, 28.500001, 0), App.Vector(0, 0, 1), 3.499999), math.radians(89.999985), math.radians(180.000015)),
    Part.LineSegment(App.Vector(-47, 28.5, 0), App.Vector(-47, -28.5, 0)),
    Part.ArcOfCircle(Part.Circle(App.Vector(-43.500001, -28.500001, 0), App.Vector(0, 0, 1), 3.499999), math.radians(179.999985), math.radians(270.000015)),
    Part.LineSegment(App.Vector(-43.5, -32, 0), App.Vector(43.5, -32, 0)),
    Part.ArcOfCircle(Part.Circle(App.Vector(43.500001, -28.500001, 0), App.Vector(0, 0, 1), 3.499999), math.radians(-90.000015), math.radians(0.000015)),
    Part.LineSegment(App.Vector(47, -28.5, 0), App.Vector(47, 28.5, 0)),
    Part.ArcOfCircle(Part.Circle(App.Vector(43.500001, 28.500001, 0), App.Vector(0, 0, 1), 3.499999), math.radians(-0.000015), math.radians(90.000015)),
    Part.LineSegment(App.Vector(-43.5, 31, 0), App.Vector(43.5, 31, 0)),
    Part.ArcOfCircle(Part.Circle(App.Vector(43.5, 28.5, 0), App.Vector(0, 0, 1), 2.5), math.radians(-0.000004), math.radians(90.000004)),
    Part.LineSegment(App.Vector(46, 28.5, 0), App.Vector(46, -28.5, 0)),
    Part.ArcOfCircle(Part.Circle(App.Vector(43.5, -28.5, 0), App.Vector(0, 0, 1), 2.5), math.radians(-90.000004), math.radians(0.000004)),
    Part.LineSegment(App.Vector(43.5, -31, 0), App.Vector(-43.5, -31, 0)),
    Part.ArcOfCircle(Part.Circle(App.Vector(-43.5, -28.5, 0), App.Vector(0, 0, 1), 2.5), math.radians(179.999996), math.radians(270.000004)),
    Part.LineSegment(App.Vector(-46, -28.5, 0), App.Vector(-46, 28.5, 0)),
    Part.ArcOfCircle(Part.Circle(App.Vector(-43.5, 28.5, 0), App.Vector(0, 0, 1), 2.5), math.radians(89.999996), math.radians(180.000004)),
], False)
sketch7.addConstraint([
    Sketcher.Constraint("Tangent", 0, 2, 1, 1),
    Sketcher.Constraint("Tangent", 1, 2, 2, 1),
    Sketcher.Constraint("Tangent", 2, 2, 3, 1),
    Sketcher.Constraint("Tangent", 3, 2, 4, 1),
    Sketcher.Constraint("Tangent", 4, 2, 5, 1),
    Sketcher.Constraint("Tangent", 5, 2, 6, 1),
    Sketcher.Constraint("Tangent", 6, 2, 7, 1),
    Sketcher.Constraint("Tangent", 7, 2, 0, 1),
    Sketcher.Constraint("Tangent", 8, 2, 9, 2),
    Sketcher.Constraint("Tangent", 9, 1, 10, 1),
    Sketcher.Constraint("Tangent", 10, 2, 11, 2),
    Sketcher.Constraint("Tangent", 11, 1, 12, 1),
    Sketcher.Constraint("Tangent", 12, 2, 13, 2),
    Sketcher.Constraint("Tangent", 13, 1, 14, 1),
    Sketcher.Constraint("Tangent", 14, 2, 15, 2),
    Sketcher.Constraint("Tangent", 15, 1, 8, 1),
    Sketcher.Constraint("Horizontal", 0),
    Sketcher.Constraint("Vertical", 2),
    Sketcher.Constraint("Horizontal", 4),
    Sketcher.Constraint("Vertical", 6),
    Sketcher.Constraint("Horizontal", 8),
    Sketcher.Constraint("Vertical", 10),
    Sketcher.Constraint("Horizontal", 12),
    Sketcher.Constraint("Vertical", 14),
    Sketcher.Constraint("Coincident", 9, 3, 7, 3),
    Sketcher.Constraint("Coincident", 11, 3, 5, 3),
    Sketcher.Constraint("Coincident", 13, 3, 3, 3),
    Sketcher.Constraint("Equal", 1, 3),
    Sketcher.Constraint("Equal", 3, 5),
    Sketcher.Constraint("Equal", 5, 7),
    Sketcher.Constraint("Equal", 13, 15),
    Sketcher.Constraint("Symmetric", 1, 3, 5, 3, -1, 1),
    Sketcher.Constraint("Radius", 1, 3.499999),
    Sketcher.Constraint("Radius", 9, 2.5),
    Sketcher.Constraint("DistanceX", 0, 2, 0, 1, 87.0),
    Sketcher.Constraint("DistanceY", 2, 2, 2, 1, 57.0),
])
pocket3 = body.newObject("PartDesign::Pocket", "Pocket002")
pocket3.Profile = sketch7
pocket3.Length = 0.6

sketch8 = body.newObject("Sketcher::SketchObject", "Sketch007")
sketch8.AttachmentSupport = (doc.getObject("XY_Plane"), [""])
sketch8.MapMode = "FlatFace"
sketch8.AttachmentOffset = App.Placement(App.Vector(0, 0, 16.6), App.Rotation())
sketch8.addGeometry([
    Part.Circle(App.Vector(-50.55, 36.55, 0), App.Vector(0, 0, 1), 1.95),
    Part.Circle(App.Vector(-10.55, 36.55, 0), App.Vector(0, 0, 1), 1.95),
    Part.Circle(App.Vector(10.55, 36.55, 0), App.Vector(0, 0, 1), 1.95),
    Part.Circle(App.Vector(50.55, 36.55, 0), App.Vector(0, 0, 1), 1.95),
    Part.Circle(App.Vector(50.55, -36.55, 0), App.Vector(0, 0, 1), 1.95),
    Part.Circle(App.Vector(10.55, -36.55, 0), App.Vector(0, 0, 1), 1.95),
    Part.Circle(App.Vector(-10.55, -36.55, 0), App.Vector(0, 0, 1), 1.95),
    Part.Circle(App.Vector(-50.55, -36.55, 0), App.Vector(0, 0, 1), 1.95),
    Part.Circle(App.Vector(-50.55, 0, 0), App.Vector(0, 0, 1), 1.95),
    Part.Circle(App.Vector(50.55, 0, 0), App.Vector(0, 0, 1), 1.95),
], False)
sketch8.addConstraint([
    Sketcher.Constraint("Equal", 0, 1),
    Sketcher.Constraint("Equal", 1, 2),
    Sketcher.Constraint("Equal", 2, 3),
    Sketcher.Constraint("Equal", 3, 4),
    Sketcher.Constraint("Equal", 4, 5),
    Sketcher.Constraint("Equal", 5, 6),
    Sketcher.Constraint("Equal", 6, 7),
    Sketcher.Constraint("Equal", 7, 8),
    Sketcher.Constraint("Equal", 8, 9),
    Sketcher.Constraint("Symmetric", 0, 3, 4, 3, -1, 1),
    Sketcher.Constraint("Symmetric", 1, 3, 5, 3, -1, 1),
    Sketcher.Constraint("Symmetric", 2, 3, 6, 3, -1, 1),
    Sketcher.Constraint("Symmetric", 3, 3, 7, 3, -1, 1),
    Sketcher.Constraint("Symmetric", 8, 3, 9, 3, -1, 1),
    Sketcher.Constraint("Symmetric", 1, 3, 2, 3, -2),
    Sketcher.Constraint("Symmetric", 0, 3, 3, 3, -2),
    Sketcher.Constraint("PointOnObject", 8, 3, -1),
    Sketcher.Constraint("Horizontal", 0, 3, 1, 3),
    Sketcher.Constraint("Vertical", 7, 3, 8, 3),
    Sketcher.Constraint("Diameter", 0, 3.9),
    Sketcher.Constraint("DistanceX", 0, 3, 1, 3, 40.0),
    Sketcher.Constraint("DistanceX", 1, 3, 2, 3, 21.1),
    Sketcher.Constraint("DistanceY", 4, 3, 3, 3, 73.1),
])
pocket4 = body.newObject("PartDesign::Pocket", "Pocket003")
pocket4.Profile = sketch8
pocket4.Length = 6.5

doc.recompute()
